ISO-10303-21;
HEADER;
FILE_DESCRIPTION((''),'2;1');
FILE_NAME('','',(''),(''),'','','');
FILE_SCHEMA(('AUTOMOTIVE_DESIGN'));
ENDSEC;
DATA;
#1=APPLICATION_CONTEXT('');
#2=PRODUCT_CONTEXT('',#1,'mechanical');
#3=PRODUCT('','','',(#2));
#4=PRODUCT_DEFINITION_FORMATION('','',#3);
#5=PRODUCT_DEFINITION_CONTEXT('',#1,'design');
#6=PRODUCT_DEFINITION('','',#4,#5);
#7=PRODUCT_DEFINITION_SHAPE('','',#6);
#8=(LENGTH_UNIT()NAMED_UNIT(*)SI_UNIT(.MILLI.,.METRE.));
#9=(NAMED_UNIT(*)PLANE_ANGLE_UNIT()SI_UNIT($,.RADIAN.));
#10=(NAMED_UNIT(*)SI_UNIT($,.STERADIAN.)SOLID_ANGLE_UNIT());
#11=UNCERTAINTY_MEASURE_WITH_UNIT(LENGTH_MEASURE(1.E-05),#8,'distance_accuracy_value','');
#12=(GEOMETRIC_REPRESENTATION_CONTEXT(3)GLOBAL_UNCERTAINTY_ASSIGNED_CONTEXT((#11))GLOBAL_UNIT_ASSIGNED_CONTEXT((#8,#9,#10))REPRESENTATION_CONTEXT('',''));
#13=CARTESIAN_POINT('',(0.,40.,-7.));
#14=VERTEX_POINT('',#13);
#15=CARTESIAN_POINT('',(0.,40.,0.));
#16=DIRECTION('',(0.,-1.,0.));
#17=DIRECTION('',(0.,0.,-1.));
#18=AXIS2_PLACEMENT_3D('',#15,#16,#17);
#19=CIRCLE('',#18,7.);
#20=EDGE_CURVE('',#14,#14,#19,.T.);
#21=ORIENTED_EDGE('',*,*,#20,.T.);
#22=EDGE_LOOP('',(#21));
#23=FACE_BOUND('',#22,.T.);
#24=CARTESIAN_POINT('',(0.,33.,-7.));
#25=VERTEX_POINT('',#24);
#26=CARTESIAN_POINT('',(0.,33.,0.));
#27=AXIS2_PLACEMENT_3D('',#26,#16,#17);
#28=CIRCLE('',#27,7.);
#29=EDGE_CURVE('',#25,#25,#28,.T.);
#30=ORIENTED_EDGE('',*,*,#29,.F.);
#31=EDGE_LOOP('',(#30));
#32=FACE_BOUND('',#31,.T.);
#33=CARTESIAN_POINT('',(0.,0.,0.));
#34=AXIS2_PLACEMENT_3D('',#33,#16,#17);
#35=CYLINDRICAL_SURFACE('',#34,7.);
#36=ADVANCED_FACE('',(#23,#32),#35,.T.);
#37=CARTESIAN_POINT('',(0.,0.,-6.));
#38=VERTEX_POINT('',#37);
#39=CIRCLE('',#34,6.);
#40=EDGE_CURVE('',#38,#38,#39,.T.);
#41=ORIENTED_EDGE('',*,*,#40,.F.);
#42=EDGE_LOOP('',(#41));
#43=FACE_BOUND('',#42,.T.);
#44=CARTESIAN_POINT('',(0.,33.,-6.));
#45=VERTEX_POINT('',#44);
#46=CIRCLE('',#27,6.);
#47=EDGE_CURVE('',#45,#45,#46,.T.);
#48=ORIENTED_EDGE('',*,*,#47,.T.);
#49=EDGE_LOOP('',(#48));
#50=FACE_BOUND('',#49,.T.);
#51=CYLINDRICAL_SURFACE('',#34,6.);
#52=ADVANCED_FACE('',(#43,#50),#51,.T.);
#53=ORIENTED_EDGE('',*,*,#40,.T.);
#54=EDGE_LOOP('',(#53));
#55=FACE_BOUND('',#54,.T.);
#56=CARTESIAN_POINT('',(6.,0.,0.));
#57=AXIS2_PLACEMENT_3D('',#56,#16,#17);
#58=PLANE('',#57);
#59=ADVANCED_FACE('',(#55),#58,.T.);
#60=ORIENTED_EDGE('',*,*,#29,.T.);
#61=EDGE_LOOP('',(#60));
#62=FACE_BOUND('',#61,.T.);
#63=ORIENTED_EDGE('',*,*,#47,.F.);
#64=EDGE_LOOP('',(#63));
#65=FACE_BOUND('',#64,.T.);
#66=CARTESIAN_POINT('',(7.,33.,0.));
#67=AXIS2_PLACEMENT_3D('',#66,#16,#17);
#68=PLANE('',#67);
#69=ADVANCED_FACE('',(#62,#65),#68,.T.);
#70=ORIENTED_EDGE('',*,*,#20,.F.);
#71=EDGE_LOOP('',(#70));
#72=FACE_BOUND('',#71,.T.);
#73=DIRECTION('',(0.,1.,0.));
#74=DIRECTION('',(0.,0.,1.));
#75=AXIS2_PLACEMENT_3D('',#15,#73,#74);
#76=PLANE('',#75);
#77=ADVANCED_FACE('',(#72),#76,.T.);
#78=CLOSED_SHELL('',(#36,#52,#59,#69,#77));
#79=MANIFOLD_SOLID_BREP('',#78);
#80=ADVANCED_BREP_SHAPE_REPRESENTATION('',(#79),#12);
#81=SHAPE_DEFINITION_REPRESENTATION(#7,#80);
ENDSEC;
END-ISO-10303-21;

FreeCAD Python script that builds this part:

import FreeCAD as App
import Part
import Sketcher
from FreeCAD import Vector
Q = App.Units.Quantity


def add_polygon(sketch, points):
    """Adds a closed chain of lines whose ends are joined by coincident constraints."""
    first, n = sketch.GeometryCount, len(points)
    for a, b in zip(points, points[1:] + points[:1]):
        sketch.addGeometry(Part.LineSegment(App.Vector(*a, 0), App.Vector(*b, 0)), False)
    for i in range(n):
        sketch.addConstraint(Sketcher.Constraint("Coincident", first + i, 2, first + (i + 1) % n, 1))

doc = App.newDocument("Part")
body = doc.addObject("PartDesign::Body", "Body")

# Sketch on XY plane
sketch1 = body.newObject("Sketcher::SketchObject", "Sketch")
sketch1.AttachmentSupport = (doc.getObject("XY_Plane"), [""])
sketch1.MapMode = "FlatFace"
add_polygon(sketch1, [(0, 40), (0, 0), (6, 0), (6, 33), (7, 33), (7, 40)])  # lines 0-5
sketch1.addConstraint(Sketcher.Constraint("Vertical", 0))
sketch1.addConstraint(Sketcher.Constraint("Horizontal", 1))
sketch1.addConstraint(Sketcher.Constraint("Vertical", 2))
sketch1.addConstraint(Sketcher.Constraint("Horizontal", 3))
sketch1.addConstraint(Sketcher.Constraint("Vertical", 4))
sketch1.addConstraint(Sketcher.Constraint("Horizontal", 5))
sketch1.addConstraint(Sketcher.Constraint("Coincident", 0, 2, -1, 1))
sketch1.addConstraint(Sketcher.Constraint("Equal", 5, 4))
sketch1.addConstraint(Sketcher.Constraint("DistanceX", 1, 1, 1, 2, Q("6 mm")))
sketch1.addConstraint(Sketcher.Constraint("DistanceX", 3, 1, 3, 2, Q("1 mm")))
sketch1.addConstraint(Sketcher.Constraint("DistanceY", 0, 2, 0, 1, Q("40 mm")))
revolution = body.newObject("PartDesign::Revolution", "Revolution")
revolution.Profile = sketch1
revolution.ReferenceAxis = (sketch1, ["V_Axis"])
revolution.Angle = 360

doc.recompute()
